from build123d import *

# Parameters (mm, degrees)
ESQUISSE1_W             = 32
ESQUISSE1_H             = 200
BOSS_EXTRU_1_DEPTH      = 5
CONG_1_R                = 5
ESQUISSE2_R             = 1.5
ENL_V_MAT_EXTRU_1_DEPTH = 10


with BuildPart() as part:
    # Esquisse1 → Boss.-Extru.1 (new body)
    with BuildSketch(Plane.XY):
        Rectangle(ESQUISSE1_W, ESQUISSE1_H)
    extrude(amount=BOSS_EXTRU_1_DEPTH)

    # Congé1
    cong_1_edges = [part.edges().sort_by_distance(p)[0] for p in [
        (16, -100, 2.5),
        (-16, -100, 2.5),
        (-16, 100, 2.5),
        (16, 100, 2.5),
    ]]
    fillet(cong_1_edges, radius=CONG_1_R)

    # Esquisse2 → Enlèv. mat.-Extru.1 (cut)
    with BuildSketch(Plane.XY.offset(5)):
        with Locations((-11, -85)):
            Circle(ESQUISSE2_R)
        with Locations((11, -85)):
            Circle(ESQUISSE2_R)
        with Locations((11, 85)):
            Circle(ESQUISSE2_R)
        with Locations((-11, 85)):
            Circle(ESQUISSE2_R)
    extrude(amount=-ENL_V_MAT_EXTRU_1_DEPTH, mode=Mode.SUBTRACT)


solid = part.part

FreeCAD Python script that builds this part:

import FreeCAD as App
import Part
import Sketcher

V = App.Vector
Q = App.Units.Quantity


def edges_at(feature, points):
    """Names of the edges that pass closest to the given points."""
    edges = feature.Shape.Edges
    near = lambda p: min(range(len(edges)), key=lambda i: edges[i].distToShape(Part.Vertex(*p))[0])
    return sorted({f"Edge{near(p) + 1}" for p in points})

doc = App.newDocument("Part")
body = doc.addObject("PartDesign::Body", "Body")

# Sketch on XY plane
sketch1 = body.newObject("Sketcher::SketchObject", "Sketch")
sketch1.AttachmentSupport = (doc.getObject("XY_Plane"), [""])
sketch1.MapMode = "FlatFace"
sketch1.addGeometry([
    Part.LineSegment(V(-16, 100, 0), V(-16, -100, 0)),
    Part.LineSegment(V(-16, -100, 0), V(16, -100, 0)),
    Part.LineSegment(V(16, -100, 0), V(16, 100, 0)),
    Part.LineSegment(V(16, 100, 0), V(-16, 100, 0)),
], False)
sketch1.addConstraint([
    Sketcher.Constraint("Coincident", 0, 2, 1, 1),
    Sketcher.Constraint("Coincident", 1, 2, 2, 1),
    Sketcher.Constraint("Coincident", 2, 2, 3, 1),
    Sketcher.Constraint("Coincident", 3, 2, 0, 1),
    Sketcher.Constraint("Vertical", 0),
    Sketcher.Constraint("Horizontal", 1),
    Sketcher.Constraint("Vertical", 2),
    Sketcher.Constraint("Horizontal", 3),
    Sketcher.Constraint("Symmetric", 0, 2, 2, 2, -1, 1),
    Sketcher.Constraint("DistanceX", 1, 1, 1, 2, Q("32 mm")),
    Sketcher.Constraint("DistanceY", 0, 2, 0, 1, Q("200 mm")),
])
pad1 = body.newObject("PartDesign::Pad", "Pad")
pad1.Profile = sketch1
pad1.Length = 5
doc.recompute()

fillet = body.newObject("PartDesign::Fillet", "Fillet")
fillet.Base = (pad1, edges_at(pad1, [
    (16, -100, 2.5),
    (-16, -100, 2.5),
    (-16, 100, 2.5),
    (16, 100, 2.5),
]))
fillet.Radius = 5

# Sketch on XY plane
sketch2 = body.newObject("Sketcher::SketchObject", "Sketch001")
sketch2.AttachmentSupport = (doc.getObject("XY_Plane"), [""])
sketch2.MapMode = "FlatFace"
sketch2.AttachmentOffset = App.Placement(V(0, 0, 5), App.Rotation())
sketch2.addGeometry([
    Part.Circle(V(-11, -85, 0), V(0, 0, 1), 1.5),
    Part.Circle(V(11, -85, 0), V(0, 0, 1), 1.5),
    Part.Circle(V(11, 85, 0), V(0, 0, 1), 1.5),
    Part.Circle(V(-11, 85, 0), V(0, 0, 1), 1.5),
], False)
sketch2.addConstraint([
    Sketcher.Constraint("Equal", 0, 1),
    Sketcher.Constraint("Equal", 1, 2),
    Sketcher.Constraint("Equal", 2, 3),
    Sketcher.Constraint("Symmetric", 0, 3, 2, 3, -1, 1),
    Sketcher.Constraint("Symmetric", 1, 3, 3, 3, -1, 1),
    Sketcher.Constraint("Symmetric", 0, 3, 1, 3, -2),
    Sketcher.Constraint("Diameter", 0, Q("3 mm")),
    Sketcher.Constraint("DistanceX", 0, 3, -1, 1, Q("11 mm")),
    Sketcher.Constraint("DistanceY", 0, 3, -1, 1, Q("85 mm")),
])
pocket1 = body.newObject("PartDesign::Pocket", "Pocket")
pocket1.Profile = sketch2
pocket1.Length = 10

doc.recompute()
